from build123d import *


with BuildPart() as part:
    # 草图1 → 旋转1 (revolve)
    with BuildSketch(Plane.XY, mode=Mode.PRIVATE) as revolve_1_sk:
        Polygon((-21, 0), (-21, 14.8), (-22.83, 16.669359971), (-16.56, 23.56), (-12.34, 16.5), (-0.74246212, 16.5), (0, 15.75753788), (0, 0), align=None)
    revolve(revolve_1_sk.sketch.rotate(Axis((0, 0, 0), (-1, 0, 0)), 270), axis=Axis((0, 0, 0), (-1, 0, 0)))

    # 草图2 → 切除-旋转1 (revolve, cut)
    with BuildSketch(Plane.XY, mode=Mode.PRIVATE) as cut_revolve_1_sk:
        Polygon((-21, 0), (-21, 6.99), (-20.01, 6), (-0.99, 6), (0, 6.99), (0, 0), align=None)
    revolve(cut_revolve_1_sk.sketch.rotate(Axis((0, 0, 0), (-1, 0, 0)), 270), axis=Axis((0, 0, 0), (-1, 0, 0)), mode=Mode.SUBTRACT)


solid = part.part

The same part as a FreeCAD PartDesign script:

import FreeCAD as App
import Part
import Sketcher
from FreeCAD import Vector
Q = App.Units.Quantity


def add_polygon(sketch, points):
    """Adds a closed chain of lines whose ends are joined by coincident constraints."""
    first, n = sketch.GeometryCount, len(points)
    for a, b in zip(points, points[1:] + points[:1]):
        sketch.addGeometry(Part.LineSegment(App.Vector(*a, 0), App.Vector(*b, 0)), False)
    for i in range(n):
        sketch.addConstraint(Sketcher.Constraint("Coincident", first + i, 2, first + (i + 1) % n, 1))

doc = App.newDocument("Part")
body = doc.addObject("PartDesign::Body", "Body")

sketch1 = body.newObject("Sketcher::SketchObject", "Sketch")
sketch1.AttachmentSupport = (doc.getObject("XY_Plane"), [""])
sketch1.MapMode = "FlatFace"
add_polygon(sketch1, [(-21, 14.8), (-21, 0), (0, 0), (0, 15.8), (-0.7, 16.5), (-12.3, 16.5), (-16.6, 23.6), (-22.8, 16.7)])
sketch1.addConstraint(Sketcher.Constraint("Vertical", 0))
sketch1.addConstraint(Sketcher.Constraint("Horizontal", 1))
sketch1.addConstraint(Sketcher.Constraint("Vertical", 2))
sketch1.addConstraint(Sketcher.Constraint("Horizontal", 4))
sketch1.addConstraint(Sketcher.Constraint("Coincident", 1, 2, -1, 1))
sketch1.addConstraint(Sketcher.Constraint("DistanceX", 1, 1, 1, 2, 21.0))
sketch1.addConstraint(Sketcher.Constraint("Angle", 3, Q("135 deg")))
sketch1.addConstraint(Sketcher.Constraint("DistanceY", 0, 2, 0, 1, 14.8))
sketch1.addConstraint(Sketcher.Constraint("Angle", 6, Q("-132.3 deg")))
sketch1.addConstraint(Sketcher.Constraint("DistanceY", -1, 1, 3, 2, 16.5))
sketch1.addConstraint(Sketcher.Constraint("Distance", 3, 1.05))
sketch1.addConstraint(Sketcher.Constraint("DistanceX", 4, 2, -1, 1, 12.34))
sketch1.addConstraint(Sketcher.Constraint("DistanceX", 5, 2, -1, 1, 16.56))
sketch1.addConstraint(Sketcher.Constraint("DistanceY", -1, 1, 5, 2, 23.56))
sketch1.addConstraint(Sketcher.Constraint("DistanceX", 6, 2, -1, 1, 22.83))
revolution = body.newObject("PartDesign::Revolution", "Revolution")
revolution.Profile = sketch1
revolution.ReferenceAxis = (sketch1, ["H_Axis"])
revolution.Angle = 360

sketch2 = body.newObject("Sketcher::SketchObject", "Sketch001")
sketch2.AttachmentSupport = (doc.getObject("XY_Plane"), [""])
sketch2.MapMode = "FlatFace"
add_polygon(sketch2, [(-21, 7), (-21, 0), (0, 0), (0, 7), (-1, 6), (-20, 6)])
sketch2.addConstraint(Sketcher.Constraint("Vertical", 0))
sketch2.addConstraint(Sketcher.Constraint("Horizontal", 1))
sketch2.addConstraint(Sketcher.Constraint("Vertical", 2))
sketch2.addConstraint(Sketcher.Constraint("Horizontal", 4))
sketch2.addConstraint(Sketcher.Constraint("Coincident", 1, 2, -1, 1))
sketch2.addConstraint(Sketcher.Constraint("Perpendicular", 3, 5))
sketch2.addConstraint(Sketcher.Constraint("Horizontal", 2, 2, 5, 2))
sketch2.addConstraint(Sketcher.Constraint("Equal", 3, 5))
sketch2.addConstraint(Sketcher.Constraint("DistanceX", 1, 1, 1, 2, 21.0))
sketch2.addConstraint(Sketcher.Constraint("DistanceY", -1, 1, 3, 2, 6.0))
sketch2.addConstraint(Sketcher.Constraint("DistanceX", 4, 2, 4, 1, 19.02))
groove = body.newObject("PartDesign::Groove", "Groove")
groove.Profile = sketch2
groove.ReferenceAxis = (sketch2, ["H_Axis"])
groove.Angle = 360

doc.recompute()
